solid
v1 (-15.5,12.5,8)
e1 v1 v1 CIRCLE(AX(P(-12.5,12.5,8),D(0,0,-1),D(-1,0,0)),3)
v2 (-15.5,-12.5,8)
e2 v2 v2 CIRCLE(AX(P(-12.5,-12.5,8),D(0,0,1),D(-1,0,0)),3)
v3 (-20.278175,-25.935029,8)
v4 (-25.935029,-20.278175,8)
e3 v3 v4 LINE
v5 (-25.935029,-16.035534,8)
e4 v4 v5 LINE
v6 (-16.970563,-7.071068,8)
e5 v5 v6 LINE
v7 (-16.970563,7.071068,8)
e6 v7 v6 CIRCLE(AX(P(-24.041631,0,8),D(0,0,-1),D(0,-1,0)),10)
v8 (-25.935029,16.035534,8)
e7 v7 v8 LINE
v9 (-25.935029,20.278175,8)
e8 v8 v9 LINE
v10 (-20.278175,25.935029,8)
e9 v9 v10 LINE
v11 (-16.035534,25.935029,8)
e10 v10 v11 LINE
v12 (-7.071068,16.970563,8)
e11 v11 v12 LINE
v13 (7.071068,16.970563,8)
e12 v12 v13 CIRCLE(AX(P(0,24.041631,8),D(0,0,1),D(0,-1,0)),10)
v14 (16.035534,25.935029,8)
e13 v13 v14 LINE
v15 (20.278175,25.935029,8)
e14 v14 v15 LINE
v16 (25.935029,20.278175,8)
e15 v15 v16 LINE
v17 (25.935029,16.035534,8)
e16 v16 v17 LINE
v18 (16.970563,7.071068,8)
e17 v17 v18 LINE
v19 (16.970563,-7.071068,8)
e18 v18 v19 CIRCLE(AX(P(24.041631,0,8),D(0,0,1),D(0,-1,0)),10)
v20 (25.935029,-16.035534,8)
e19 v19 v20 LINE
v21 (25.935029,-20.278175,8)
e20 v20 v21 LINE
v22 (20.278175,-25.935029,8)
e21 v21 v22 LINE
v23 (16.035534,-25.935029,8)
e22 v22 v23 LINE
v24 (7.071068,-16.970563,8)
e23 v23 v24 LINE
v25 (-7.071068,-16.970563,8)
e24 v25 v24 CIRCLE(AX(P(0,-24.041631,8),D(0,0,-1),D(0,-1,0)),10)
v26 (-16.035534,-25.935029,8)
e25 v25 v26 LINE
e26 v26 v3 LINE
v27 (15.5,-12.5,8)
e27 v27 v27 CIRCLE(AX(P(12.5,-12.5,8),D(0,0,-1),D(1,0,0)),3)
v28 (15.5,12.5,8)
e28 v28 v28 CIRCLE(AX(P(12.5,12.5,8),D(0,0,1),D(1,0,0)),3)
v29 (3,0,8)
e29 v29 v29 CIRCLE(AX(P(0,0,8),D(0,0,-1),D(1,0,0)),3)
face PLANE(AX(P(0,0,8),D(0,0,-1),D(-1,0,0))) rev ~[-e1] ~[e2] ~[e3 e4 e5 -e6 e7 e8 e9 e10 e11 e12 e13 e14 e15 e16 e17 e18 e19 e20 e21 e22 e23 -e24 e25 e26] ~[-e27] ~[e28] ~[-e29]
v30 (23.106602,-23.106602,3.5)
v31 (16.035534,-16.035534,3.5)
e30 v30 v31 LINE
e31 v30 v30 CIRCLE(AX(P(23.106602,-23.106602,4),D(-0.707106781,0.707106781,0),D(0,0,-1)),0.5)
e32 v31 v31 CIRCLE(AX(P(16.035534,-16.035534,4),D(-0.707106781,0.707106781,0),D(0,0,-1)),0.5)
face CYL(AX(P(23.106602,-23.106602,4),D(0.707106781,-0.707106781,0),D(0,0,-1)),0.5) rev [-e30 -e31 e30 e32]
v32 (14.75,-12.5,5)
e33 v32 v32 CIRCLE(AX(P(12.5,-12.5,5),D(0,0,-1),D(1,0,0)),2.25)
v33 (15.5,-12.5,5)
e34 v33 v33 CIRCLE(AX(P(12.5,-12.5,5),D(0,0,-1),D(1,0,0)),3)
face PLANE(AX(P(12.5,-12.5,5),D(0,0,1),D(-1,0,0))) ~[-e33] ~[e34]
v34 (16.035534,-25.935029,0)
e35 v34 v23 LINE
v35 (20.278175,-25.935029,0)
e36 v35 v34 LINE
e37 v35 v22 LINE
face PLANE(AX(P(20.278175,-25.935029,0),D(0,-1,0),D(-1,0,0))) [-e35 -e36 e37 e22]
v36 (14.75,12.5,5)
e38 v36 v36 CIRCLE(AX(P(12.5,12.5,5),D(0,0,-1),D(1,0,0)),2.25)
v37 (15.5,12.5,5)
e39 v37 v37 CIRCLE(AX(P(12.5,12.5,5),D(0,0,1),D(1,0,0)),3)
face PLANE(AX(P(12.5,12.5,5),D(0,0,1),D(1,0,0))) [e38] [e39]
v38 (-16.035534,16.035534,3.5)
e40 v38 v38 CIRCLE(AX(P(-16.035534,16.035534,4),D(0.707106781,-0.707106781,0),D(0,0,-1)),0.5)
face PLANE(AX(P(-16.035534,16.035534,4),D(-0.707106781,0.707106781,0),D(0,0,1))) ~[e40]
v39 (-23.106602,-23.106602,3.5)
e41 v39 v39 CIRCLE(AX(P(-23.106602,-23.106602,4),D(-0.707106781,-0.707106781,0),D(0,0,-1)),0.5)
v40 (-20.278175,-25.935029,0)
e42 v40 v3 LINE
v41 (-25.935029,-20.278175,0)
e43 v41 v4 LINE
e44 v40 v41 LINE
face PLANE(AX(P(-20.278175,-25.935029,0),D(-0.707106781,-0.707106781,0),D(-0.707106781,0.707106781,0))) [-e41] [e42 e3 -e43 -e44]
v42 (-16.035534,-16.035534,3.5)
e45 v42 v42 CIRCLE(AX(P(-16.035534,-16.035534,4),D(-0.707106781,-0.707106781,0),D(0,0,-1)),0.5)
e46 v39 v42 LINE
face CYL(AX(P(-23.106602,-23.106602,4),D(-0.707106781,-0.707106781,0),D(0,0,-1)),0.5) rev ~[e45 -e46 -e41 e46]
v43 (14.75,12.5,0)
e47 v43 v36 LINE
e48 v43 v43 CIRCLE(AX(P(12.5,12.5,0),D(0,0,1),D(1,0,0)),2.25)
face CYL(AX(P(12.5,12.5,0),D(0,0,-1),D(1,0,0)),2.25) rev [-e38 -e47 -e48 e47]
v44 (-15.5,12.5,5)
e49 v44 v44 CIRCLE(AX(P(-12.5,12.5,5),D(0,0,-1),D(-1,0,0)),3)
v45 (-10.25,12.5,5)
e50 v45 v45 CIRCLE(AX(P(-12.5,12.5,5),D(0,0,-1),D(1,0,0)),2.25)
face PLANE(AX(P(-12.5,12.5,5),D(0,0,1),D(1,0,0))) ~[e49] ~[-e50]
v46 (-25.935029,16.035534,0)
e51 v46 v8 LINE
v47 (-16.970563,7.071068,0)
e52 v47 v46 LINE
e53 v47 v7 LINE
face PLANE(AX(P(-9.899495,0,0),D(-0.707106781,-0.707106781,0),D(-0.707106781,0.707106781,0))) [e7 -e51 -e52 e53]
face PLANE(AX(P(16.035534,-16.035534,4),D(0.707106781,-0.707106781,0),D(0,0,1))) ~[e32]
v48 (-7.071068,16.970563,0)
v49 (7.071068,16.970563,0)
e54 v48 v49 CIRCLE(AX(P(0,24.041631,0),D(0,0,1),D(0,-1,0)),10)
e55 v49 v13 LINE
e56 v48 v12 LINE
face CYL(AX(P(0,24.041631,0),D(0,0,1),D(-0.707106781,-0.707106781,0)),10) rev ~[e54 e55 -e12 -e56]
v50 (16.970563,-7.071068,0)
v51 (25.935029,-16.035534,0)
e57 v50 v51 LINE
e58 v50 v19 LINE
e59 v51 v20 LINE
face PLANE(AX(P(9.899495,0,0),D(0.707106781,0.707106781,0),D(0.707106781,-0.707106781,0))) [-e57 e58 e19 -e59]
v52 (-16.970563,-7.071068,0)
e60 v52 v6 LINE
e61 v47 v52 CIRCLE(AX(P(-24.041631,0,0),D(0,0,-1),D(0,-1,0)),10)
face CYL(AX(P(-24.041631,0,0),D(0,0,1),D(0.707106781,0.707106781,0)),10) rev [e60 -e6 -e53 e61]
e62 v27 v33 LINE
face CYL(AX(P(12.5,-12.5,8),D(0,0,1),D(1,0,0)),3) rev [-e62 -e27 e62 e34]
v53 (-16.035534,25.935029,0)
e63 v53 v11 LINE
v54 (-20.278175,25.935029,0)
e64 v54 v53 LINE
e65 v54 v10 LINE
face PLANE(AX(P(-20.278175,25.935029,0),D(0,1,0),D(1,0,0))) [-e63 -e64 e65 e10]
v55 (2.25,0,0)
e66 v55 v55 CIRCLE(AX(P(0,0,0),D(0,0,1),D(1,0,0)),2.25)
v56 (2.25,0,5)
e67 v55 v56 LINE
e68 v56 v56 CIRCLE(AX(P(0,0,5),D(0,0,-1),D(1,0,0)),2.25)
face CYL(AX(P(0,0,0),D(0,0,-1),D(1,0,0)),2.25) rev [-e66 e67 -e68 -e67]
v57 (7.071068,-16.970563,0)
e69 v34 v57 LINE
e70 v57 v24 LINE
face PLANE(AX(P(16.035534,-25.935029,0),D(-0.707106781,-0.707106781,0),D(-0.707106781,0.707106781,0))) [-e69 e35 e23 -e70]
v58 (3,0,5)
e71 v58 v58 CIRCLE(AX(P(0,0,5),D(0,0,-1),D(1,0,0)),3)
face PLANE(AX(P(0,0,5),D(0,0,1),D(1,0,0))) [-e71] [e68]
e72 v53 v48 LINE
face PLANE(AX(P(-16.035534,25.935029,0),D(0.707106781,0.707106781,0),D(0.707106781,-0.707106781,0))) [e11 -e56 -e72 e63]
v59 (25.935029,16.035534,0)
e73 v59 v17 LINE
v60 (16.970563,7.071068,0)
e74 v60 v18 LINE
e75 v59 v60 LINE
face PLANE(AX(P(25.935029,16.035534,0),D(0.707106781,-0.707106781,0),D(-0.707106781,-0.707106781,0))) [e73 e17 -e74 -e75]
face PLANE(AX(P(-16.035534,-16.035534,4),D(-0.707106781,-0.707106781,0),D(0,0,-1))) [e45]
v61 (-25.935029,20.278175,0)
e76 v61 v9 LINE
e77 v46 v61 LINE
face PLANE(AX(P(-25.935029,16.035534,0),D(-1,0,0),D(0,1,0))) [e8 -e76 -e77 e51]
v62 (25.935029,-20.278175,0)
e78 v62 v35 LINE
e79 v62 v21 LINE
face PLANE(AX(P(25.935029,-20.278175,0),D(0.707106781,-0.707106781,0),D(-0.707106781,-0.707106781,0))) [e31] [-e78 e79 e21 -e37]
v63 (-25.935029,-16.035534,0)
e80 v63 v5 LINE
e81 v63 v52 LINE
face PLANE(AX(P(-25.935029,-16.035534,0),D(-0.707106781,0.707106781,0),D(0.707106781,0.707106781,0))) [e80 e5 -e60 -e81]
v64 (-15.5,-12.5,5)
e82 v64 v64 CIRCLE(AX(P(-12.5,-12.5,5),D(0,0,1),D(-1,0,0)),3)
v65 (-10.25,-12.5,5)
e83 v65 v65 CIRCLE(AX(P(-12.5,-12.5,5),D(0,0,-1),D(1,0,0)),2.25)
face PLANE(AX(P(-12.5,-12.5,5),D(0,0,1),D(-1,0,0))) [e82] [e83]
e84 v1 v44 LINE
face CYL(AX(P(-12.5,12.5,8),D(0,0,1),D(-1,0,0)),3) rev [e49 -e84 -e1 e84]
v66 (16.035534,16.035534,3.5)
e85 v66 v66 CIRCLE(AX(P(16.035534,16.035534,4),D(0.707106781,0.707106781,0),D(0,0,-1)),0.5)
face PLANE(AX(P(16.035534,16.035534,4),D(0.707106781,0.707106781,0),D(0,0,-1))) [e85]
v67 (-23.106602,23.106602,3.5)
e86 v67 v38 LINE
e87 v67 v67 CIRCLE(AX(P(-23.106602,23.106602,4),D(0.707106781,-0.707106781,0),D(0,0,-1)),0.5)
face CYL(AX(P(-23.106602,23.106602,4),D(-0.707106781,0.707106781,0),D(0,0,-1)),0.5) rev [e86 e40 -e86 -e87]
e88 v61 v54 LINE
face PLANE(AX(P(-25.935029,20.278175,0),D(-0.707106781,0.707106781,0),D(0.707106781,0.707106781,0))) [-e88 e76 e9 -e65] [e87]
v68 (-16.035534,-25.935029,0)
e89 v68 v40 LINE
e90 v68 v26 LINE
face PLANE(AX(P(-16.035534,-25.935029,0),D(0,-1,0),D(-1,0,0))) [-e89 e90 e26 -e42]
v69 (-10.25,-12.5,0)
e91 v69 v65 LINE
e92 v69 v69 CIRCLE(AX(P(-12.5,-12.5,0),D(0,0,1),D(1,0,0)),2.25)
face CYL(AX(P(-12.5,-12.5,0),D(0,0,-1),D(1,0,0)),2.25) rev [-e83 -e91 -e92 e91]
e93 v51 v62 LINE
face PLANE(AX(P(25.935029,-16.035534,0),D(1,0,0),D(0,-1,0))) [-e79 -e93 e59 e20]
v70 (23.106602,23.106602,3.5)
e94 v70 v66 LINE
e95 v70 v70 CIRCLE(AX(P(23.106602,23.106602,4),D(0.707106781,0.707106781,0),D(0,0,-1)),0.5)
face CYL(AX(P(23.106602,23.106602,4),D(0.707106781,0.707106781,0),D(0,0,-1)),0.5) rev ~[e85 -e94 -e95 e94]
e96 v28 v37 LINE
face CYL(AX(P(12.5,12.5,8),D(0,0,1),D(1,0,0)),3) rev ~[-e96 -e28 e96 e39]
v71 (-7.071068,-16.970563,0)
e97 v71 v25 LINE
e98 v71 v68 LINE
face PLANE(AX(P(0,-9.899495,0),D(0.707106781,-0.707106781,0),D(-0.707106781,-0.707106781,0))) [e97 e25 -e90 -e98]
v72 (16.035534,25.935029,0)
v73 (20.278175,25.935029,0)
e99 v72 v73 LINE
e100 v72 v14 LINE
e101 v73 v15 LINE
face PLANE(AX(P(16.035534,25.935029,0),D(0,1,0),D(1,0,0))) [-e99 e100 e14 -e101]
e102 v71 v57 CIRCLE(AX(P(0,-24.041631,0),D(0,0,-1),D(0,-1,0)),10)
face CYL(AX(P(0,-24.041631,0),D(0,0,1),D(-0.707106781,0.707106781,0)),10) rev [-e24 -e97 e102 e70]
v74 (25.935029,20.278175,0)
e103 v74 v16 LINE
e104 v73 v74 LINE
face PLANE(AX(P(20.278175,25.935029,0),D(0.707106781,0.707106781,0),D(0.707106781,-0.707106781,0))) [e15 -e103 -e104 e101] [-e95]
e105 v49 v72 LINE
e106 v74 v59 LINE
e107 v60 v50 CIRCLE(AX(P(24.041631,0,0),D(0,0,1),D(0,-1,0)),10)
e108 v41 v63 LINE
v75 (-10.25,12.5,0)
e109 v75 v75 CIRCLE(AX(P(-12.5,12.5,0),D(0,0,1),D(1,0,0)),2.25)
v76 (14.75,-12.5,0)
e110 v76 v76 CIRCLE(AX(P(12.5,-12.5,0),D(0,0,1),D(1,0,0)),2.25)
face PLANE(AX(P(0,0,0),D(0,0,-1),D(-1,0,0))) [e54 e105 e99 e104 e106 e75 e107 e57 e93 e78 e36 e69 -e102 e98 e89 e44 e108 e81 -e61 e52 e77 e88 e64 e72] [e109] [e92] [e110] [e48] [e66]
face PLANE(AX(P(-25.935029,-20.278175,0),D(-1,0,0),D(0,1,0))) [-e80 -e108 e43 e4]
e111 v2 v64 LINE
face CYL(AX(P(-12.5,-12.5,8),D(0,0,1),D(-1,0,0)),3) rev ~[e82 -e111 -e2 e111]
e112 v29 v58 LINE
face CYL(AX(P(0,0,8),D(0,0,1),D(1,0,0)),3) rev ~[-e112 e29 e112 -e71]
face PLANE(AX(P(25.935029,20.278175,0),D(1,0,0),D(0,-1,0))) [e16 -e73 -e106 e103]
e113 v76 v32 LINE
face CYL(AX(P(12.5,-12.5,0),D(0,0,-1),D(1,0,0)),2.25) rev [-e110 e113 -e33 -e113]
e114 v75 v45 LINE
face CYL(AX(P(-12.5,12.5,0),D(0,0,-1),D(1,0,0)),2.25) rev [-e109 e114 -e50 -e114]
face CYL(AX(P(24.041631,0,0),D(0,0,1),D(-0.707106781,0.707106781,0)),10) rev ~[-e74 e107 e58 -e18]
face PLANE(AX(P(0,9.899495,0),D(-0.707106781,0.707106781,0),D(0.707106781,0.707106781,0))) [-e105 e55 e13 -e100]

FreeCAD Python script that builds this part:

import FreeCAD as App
import Part
import Sketcher
Q = App.Units.Quantity


def edges_at(feature, points):
    """Names of the edges that pass closest to the given points."""
    edges = feature.Shape.Edges
    near = lambda p: min(range(len(edges)), key=lambda i: edges[i].distToShape(Part.Vertex(*p))[0])
    return sorted({f"Edge{near(p) + 1}" for p in points})

doc = App.newDocument("Part")
body = doc.addObject("PartDesign::Body", "Body")

# Sketch on XY plane
sketch1 = doc.addObject("Sketcher::SketchObject", "Sketch")
body.addObject(sketch1)
sketch1.AttachmentSupport = (doc.XY_Plane, [""])
sketch1.MapMode = "FlatFace"
sketch1.addGeometry(Part.LineSegment(App.Vector(-25.9, 16, 0), App.Vector(-9.9, 0, 0)), False)
sketch1.addGeometry(Part.LineSegment(App.Vector(-9.9, 0, 0), App.Vector(-25.9, -16, 0)), False)
sketch1.addGeometry(Part.LineSegment(App.Vector(-25.9, -16, 0), App.Vector(-25.9, -20.3, 0)), False)
sketch1.addGeometry(Part.LineSegment(App.Vector(-25.9, -20.3, 0), App.Vector(-20.3, -25.9, 0)), False)
sketch1.addGeometry(Part.LineSegment(App.Vector(-20.3, -25.9, 0), App.Vector(-16, -25.9, 0)), False)
sketch1.addGeometry(Part.LineSegment(App.Vector(-16, -25.9, 0), App.Vector(0, -9.9, 0)), False)
sketch1.addGeometry(Part.LineSegment(App.Vector(0, -9.9, 0), App.Vector(16, -25.9, 0)), False)
sketch1.addGeometry(Part.LineSegment(App.Vector(16, -25.9, 0), App.Vector(20.3, -25.9, 0)), False)
sketch1.addGeometry(Part.LineSegment(App.Vector(20.3, -25.9, 0), App.Vector(25.9, -20.3, 0)), False)
sketch1.addGeometry(Part.LineSegment(App.Vector(25.9, -20.3, 0), App.Vector(25.9, -16, 0)), False)
sketch1.addGeometry(Part.LineSegment(App.Vector(25.9, -16, 0), App.Vector(9.9, 0, 0)), False)
sketch1.addGeometry(Part.LineSegment(App.Vector(9.9, 0, 0), App.Vector(25.9, 16, 0)), False)
sketch1.addGeometry(Part.LineSegment(App.Vector(25.9, 16, 0), App.Vector(25.9, 20.3, 0)), False)
sketch1.addGeometry(Part.LineSegment(App.Vector(25.9, 20.3, 0), App.Vector(20.3, 25.9, 0)), False)
sketch1.addGeometry(Part.LineSegment(App.Vector(20.3, 25.9, 0), App.Vector(16, 25.9, 0)), False)
sketch1.addGeometry(Part.LineSegment(App.Vector(16, 25.9, 0), App.Vector(0, 9.9, 0)), False)
sketch1.addGeometry(Part.LineSegment(App.Vector(0, 9.9, 0), App.Vector(-16, 25.9, 0)), False)
sketch1.addGeometry(Part.LineSegment(App.Vector(-16, 25.9, 0), App.Vector(-20.3, 25.9, 0)), False)
sketch1.addGeometry(Part.LineSegment(App.Vector(-20.3, 25.9, 0), App.Vector(-25.9, 20.3, 0)), False)
sketch1.addGeometry(Part.LineSegment(App.Vector(-25.9, 20.3, 0), App.Vector(-25.9, 16, 0)), False)
sketch1.addGeometry(Part.Circle(App.Vector(12.5, -12.5, 0), App.Vector(0, 0, 1), 2.2), False)
sketch1.addGeometry(Part.Circle(App.Vector(-12.5, -12.5, 0), App.Vector(0, 0, 1), 2.2), False)
sketch1.addGeometry(Part.Circle(App.Vector(12.5, 12.5, 0), App.Vector(0, 0, 1), 2.2), False)
sketch1.addGeometry(Part.Circle(App.Vector(0, 0, 0), App.Vector(0, 0, 1), 2.2), False)
sketch1.addGeometry(Part.Circle(App.Vector(-12.5, 12.5, 0), App.Vector(0, 0, 1), 2.2), False)
sketch1.addConstraint(Sketcher.Constraint("Coincident", 0, 2, 1, 1))
sketch1.addConstraint(Sketcher.Constraint("Coincident", 1, 2, 2, 1))
sketch1.addConstraint(Sketcher.Constraint("Coincident", 2, 2, 3, 1))
sketch1.addConstraint(Sketcher.Constraint("Coincident", 3, 2, 4, 1))
sketch1.addConstraint(Sketcher.Constraint("Coincident", 4, 2, 5, 1))
sketch1.addConstraint(Sketcher.Constraint("Coincident", 5, 2, 6, 1))
sketch1.addConstraint(Sketcher.Constraint("Coincident", 6, 2, 7, 1))
sketch1.addConstraint(Sketcher.Constraint("Coincident", 7, 2, 8, 1))
sketch1.addConstraint(Sketcher.Constraint("Coincident", 8, 2, 9, 1))
sketch1.addConstraint(Sketcher.Constraint("Coincident", 9, 2, 10, 1))
sketch1.addConstraint(Sketcher.Constraint("Coincident", 10, 2, 11, 1))
sketch1.addConstraint(Sketcher.Constraint("Coincident", 11, 2, 12, 1))
sketch1.addConstraint(Sketcher.Constraint("Coincident", 12, 2, 13, 1))
sketch1.addConstraint(Sketcher.Constraint("Coincident", 13, 2, 14, 1))
sketch1.addConstraint(Sketcher.Constraint("Coincident", 14, 2, 15, 1))
sketch1.addConstraint(Sketcher.Constraint("Coincident", 15, 2, 16, 1))
sketch1.addConstraint(Sketcher.Constraint("Coincident", 16, 2, 17, 1))
sketch1.addConstraint(Sketcher.Constraint("Coincident", 17, 2, 18, 1))
sketch1.addConstraint(Sketcher.Constraint("Coincident", 18, 2, 19, 1))
sketch1.addConstraint(Sketcher.Constraint("Coincident", 19, 2, 0, 1))
sketch1.addConstraint(Sketcher.Constraint("Vertical", 2))
sketch1.addConstraint(Sketcher.Constraint("Horizontal", 4))
sketch1.addConstraint(Sketcher.Constraint("Horizontal", 7))
sketch1.addConstraint(Sketcher.Constraint("Vertical", 9))
sketch1.addConstraint(Sketcher.Constraint("Vertical", 12))
sketch1.addConstraint(Sketcher.Constraint("Horizontal", 14))
sketch1.addConstraint(Sketcher.Constraint("Horizontal", 17))
sketch1.addConstraint(Sketcher.Constraint("Vertical", 19))
sketch1.addConstraint(Sketcher.Constraint("Coincident", 23, 3, -1, 1))
sketch1.addConstraint(Sketcher.Constraint("Equal", 20, 21))
sketch1.addConstraint(Sketcher.Constraint("Equal", 21, 22))
sketch1.addConstraint(Sketcher.Constraint("Equal", 22, 23))
sketch1.addConstraint(Sketcher.Constraint("Equal", 23, 24))
sketch1.addConstraint(Sketcher.Constraint("Symmetric", 21, 3, 22, 3, -1, 1))
sketch1.addConstraint(Sketcher.Constraint("Symmetric", 20, 3, 24, 3, -1, 1))
sketch1.addConstraint(Sketcher.Constraint("Symmetric", 0, 2, 10, 2, -1, 1))
sketch1.addConstraint(Sketcher.Constraint("Symmetric", 1, 2, 11, 2, -1, 1))
sketch1.addConstraint(Sketcher.Constraint("Symmetric", 3, 2, 13, 2, -1, 1))
sketch1.addConstraint(Sketcher.Constraint("Symmetric", 5, 2, 15, 2, -1, 1))
sketch1.addConstraint(Sketcher.Constraint("Symmetric", 6, 2, 16, 2, -1, 1))
sketch1.addConstraint(Sketcher.Constraint("Symmetric", 8, 2, 18, 2, -1, 1))
sketch1.addConstraint(Sketcher.Constraint("Symmetric", 20, 3, 21, 3, -2))
sketch1.addConstraint(Sketcher.Constraint("Symmetric", 4, 2, 6, 2, -2))
sketch1.addConstraint(Sketcher.Constraint("Symmetric", 2, 2, 8, 2, -2))
sketch1.addConstraint(Sketcher.Constraint("PointOnObject", 0, 2, -1))
sketch1.addConstraint(Sketcher.Constraint("PointOnObject", 5, 2, -2))
sketch1.addConstraint(Sketcher.Constraint("Perpendicular", 0, 1))
sketch1.addConstraint(Sketcher.Constraint("Perpendicular", 1, 3))
sketch1.addConstraint(Sketcher.Constraint("Perpendicular", 3, 5))
sketch1.addConstraint(Sketcher.Constraint("Perpendicular", 5, 6))
sketch1.addConstraint(Sketcher.Constraint("Perpendicular", 6, 8))
sketch1.addConstraint(Sketcher.Constraint("Perpendicular", 8, 10))
sketch1.addConstraint(Sketcher.Constraint("Perpendicular", 11, 13))
sketch1.addConstraint(Sketcher.Constraint("Perpendicular", 13, 15))
sketch1.addConstraint(Sketcher.Constraint("Perpendicular", 16, 18))
sketch1.addConstraint(Sketcher.Constraint("Equal", 17, 2))
sketch1.addConstraint(Sketcher.Constraint("Equal", 1, 5))
sketch1.addConstraint(Sketcher.Constraint("Diameter", 20, Q("4.5 mm")))
sketch1.addConstraint(Sketcher.Constraint("Distance", 3, Q("8 mm")))
sketch1.addConstraint(Sketcher.Constraint("DistanceX", 21, 3, 20, 3, Q("25 mm")))
sketch1.addConstraint(Sketcher.Constraint("DistanceY", 20, 3, 22, 3, Q("25 mm")))
sketch1.addConstraint(Sketcher.Constraint("DistanceX", 4, 1, 4, 2, Q("4.242641 mm")))
sketch1.addConstraint(Sketcher.Constraint("Distance", 0, Q("22.67767 mm")))
pad1 = doc.addObject("PartDesign::Pad", "Pad")
body.addObject(pad1)
pad1.Profile = sketch1
pad1.Length = 8
doc.recompute()

fillet = doc.addObject("PartDesign::Fillet", "Fillet")
body.addObject(fillet)
fillet.Base = (pad1, edges_at(pad1, [
    (0, 9.899, 4),
    (9.899, 0, 4),
    (0, -9.899, 4),
    (-9.899, 0, 4),
]))
fillet.Radius = 10

# Sketch on an angled plane
sketch2 = doc.addObject("Sketcher::SketchObject", "Sketch001")
body.addObject(sketch2)
sketch2.Placement = App.Placement(App.Vector(23.106602, 23.106602, 0), App.Rotation(App.Vector(0, 0, -1), App.Vector(-0.707106781, 0.707106781, 0), App.Vector(0.707106781, 0.707106781, 0), "ZXY"))
sketch2.addGeometry(Part.Circle(App.Vector(-4, 0, 0), App.Vector(0, 0, 1), 0.5), False)
sketch2.addConstraint(Sketcher.Constraint("PointOnObject", 0, 3, -1))
sketch2.addConstraint(Sketcher.Constraint("Diameter", 0, Q("1 mm")))
sketch2.addConstraint(Sketcher.Constraint("DistanceX", 0, 3, -1, 1, Q("4 mm")))
pocket1 = doc.addObject("PartDesign::Pocket", "Pocket")
body.addObject(pocket1)
pocket1.Profile = sketch2
pocket1.Length = 10

# Sketch on XY plane
sketch3 = doc.addObject("Sketcher::SketchObject", "Sketch002")
body.addObject(sketch3)
sketch3.AttachmentSupport = (doc.XY_Plane, [""])
sketch3.MapMode = "FlatFace"
sketch3.AttachmentOffset = App.Placement(App.Vector(0, 0, 8), App.Rotation())
sketch3.addGeometry(Part.Circle(App.Vector(12.5, 12.5, 0), App.Vector(0, 0, 1), 3), False)
sketch3.addGeometry(Part.Circle(App.Vector(0, 0, 0), App.Vector(0, 0, 1), 3), False)
sketch3.addConstraint(Sketcher.Constraint("Coincident", 1, 3, -1, 1))
sketch3.addConstraint(Sketcher.Constraint("Equal", 0, 1))
sketch3.addConstraint(Sketcher.Constraint("Diameter", 0, Q("6 mm")))
sketch3.addConstraint(Sketcher.Constraint("DistanceX", -1, 1, 0, 3, Q("12.5 mm")))
sketch3.addConstraint(Sketcher.Constraint("DistanceY", -1, 1, 0, 3, Q("12.5 mm")))
pocket2 = doc.addObject("PartDesign::Pocket", "Pocket001")
body.addObject(pocket2)
pocket2.Profile = sketch3
pocket2.Length = 3
doc.recompute()

mirrored = doc.addObject("PartDesign::Mirrored", "Mirrored")
body.addObject(mirrored)
mirrored.Originals = [pocket1, pocket2]
mirrored.MirrorPlane = (doc.XZ_Plane, [""])
body.Tip = mirrored
doc.recompute()

mirrored2 = doc.addObject("PartDesign::Mirrored", "Mirrored001")
body.addObject(mirrored2)
mirrored2.Originals = [pocket1, pocket2]
mirrored2.MirrorPlane = (doc.YZ_Plane, [""])
body.Tip = mirrored2

# Sketch on an angled plane
sketch4 = doc.addObject("Sketcher::SketchObject", "Sketch003")
body.addObject(sketch4)
sketch4.Placement = App.Placement(App.Vector(-23.106602, -23.106602, 0), App.Rotation(App.Vector(0, 0, -1), App.Vector(0.707106781, -0.707106781, 0), App.Vector(-0.707106781, -0.707106781, 0), "ZXY"))
sketch4.addGeometry(Part.Circle(App.Vector(-4, 0, 0), App.Vector(0, 0, 1), 0.5), False)
sketch4.addConstraint(Sketcher.Constraint("PointOnObject", 0, 3, -1))
sketch4.addConstraint(Sketcher.Constraint("Diameter", 0, Q("1 mm")))
sketch4.addConstraint(Sketcher.Constraint("DistanceX", 0, 3, -1, 1, Q("4 mm")))
pocket3 = doc.addObject("PartDesign::Pocket", "Pocket002")
body.addObject(pocket3)
pocket3.Profile = sketch4
pocket3.Length = 10

# Sketch on XY plane
sketch5 = doc.addObject("Sketcher::SketchObject", "Sketch004")
body.addObject(sketch5)
sketch5.AttachmentSupport = (doc.XY_Plane, [""])
sketch5.MapMode = "FlatFace"
sketch5.AttachmentOffset = App.Placement(App.Vector(0, 0, 8), App.Rotation())
sketch5.addGeometry(Part.Circle(App.Vector(-12.5, -12.5, 0), App.Vector(0, 0, 1), 3), False)
sketch5.addGeometry(Part.Circle(App.Vector(0, 0, 0), App.Vector(0, 0, 1), 3), False)
sketch5.addConstraint(Sketcher.Constraint("Coincident", 1, 3, -1, 1))
sketch5.addConstraint(Sketcher.Constraint("Equal", 0, 1))
sketch5.addConstraint(Sketcher.Constraint("Diameter", 0, Q("6 mm")))
sketch5.addConstraint(Sketcher.Constraint("DistanceX", 0, 3, -1, 1, Q("12.5 mm")))
sketch5.addConstraint(Sketcher.Constraint("DistanceY", 0, 3, -1, 1, Q("12.5 mm")))
pocket4 = doc.addObject("PartDesign::Pocket", "Pocket003")
body.addObject(pocket4)
pocket4.Profile = sketch5
pocket4.Length = 3

doc.recompute()
